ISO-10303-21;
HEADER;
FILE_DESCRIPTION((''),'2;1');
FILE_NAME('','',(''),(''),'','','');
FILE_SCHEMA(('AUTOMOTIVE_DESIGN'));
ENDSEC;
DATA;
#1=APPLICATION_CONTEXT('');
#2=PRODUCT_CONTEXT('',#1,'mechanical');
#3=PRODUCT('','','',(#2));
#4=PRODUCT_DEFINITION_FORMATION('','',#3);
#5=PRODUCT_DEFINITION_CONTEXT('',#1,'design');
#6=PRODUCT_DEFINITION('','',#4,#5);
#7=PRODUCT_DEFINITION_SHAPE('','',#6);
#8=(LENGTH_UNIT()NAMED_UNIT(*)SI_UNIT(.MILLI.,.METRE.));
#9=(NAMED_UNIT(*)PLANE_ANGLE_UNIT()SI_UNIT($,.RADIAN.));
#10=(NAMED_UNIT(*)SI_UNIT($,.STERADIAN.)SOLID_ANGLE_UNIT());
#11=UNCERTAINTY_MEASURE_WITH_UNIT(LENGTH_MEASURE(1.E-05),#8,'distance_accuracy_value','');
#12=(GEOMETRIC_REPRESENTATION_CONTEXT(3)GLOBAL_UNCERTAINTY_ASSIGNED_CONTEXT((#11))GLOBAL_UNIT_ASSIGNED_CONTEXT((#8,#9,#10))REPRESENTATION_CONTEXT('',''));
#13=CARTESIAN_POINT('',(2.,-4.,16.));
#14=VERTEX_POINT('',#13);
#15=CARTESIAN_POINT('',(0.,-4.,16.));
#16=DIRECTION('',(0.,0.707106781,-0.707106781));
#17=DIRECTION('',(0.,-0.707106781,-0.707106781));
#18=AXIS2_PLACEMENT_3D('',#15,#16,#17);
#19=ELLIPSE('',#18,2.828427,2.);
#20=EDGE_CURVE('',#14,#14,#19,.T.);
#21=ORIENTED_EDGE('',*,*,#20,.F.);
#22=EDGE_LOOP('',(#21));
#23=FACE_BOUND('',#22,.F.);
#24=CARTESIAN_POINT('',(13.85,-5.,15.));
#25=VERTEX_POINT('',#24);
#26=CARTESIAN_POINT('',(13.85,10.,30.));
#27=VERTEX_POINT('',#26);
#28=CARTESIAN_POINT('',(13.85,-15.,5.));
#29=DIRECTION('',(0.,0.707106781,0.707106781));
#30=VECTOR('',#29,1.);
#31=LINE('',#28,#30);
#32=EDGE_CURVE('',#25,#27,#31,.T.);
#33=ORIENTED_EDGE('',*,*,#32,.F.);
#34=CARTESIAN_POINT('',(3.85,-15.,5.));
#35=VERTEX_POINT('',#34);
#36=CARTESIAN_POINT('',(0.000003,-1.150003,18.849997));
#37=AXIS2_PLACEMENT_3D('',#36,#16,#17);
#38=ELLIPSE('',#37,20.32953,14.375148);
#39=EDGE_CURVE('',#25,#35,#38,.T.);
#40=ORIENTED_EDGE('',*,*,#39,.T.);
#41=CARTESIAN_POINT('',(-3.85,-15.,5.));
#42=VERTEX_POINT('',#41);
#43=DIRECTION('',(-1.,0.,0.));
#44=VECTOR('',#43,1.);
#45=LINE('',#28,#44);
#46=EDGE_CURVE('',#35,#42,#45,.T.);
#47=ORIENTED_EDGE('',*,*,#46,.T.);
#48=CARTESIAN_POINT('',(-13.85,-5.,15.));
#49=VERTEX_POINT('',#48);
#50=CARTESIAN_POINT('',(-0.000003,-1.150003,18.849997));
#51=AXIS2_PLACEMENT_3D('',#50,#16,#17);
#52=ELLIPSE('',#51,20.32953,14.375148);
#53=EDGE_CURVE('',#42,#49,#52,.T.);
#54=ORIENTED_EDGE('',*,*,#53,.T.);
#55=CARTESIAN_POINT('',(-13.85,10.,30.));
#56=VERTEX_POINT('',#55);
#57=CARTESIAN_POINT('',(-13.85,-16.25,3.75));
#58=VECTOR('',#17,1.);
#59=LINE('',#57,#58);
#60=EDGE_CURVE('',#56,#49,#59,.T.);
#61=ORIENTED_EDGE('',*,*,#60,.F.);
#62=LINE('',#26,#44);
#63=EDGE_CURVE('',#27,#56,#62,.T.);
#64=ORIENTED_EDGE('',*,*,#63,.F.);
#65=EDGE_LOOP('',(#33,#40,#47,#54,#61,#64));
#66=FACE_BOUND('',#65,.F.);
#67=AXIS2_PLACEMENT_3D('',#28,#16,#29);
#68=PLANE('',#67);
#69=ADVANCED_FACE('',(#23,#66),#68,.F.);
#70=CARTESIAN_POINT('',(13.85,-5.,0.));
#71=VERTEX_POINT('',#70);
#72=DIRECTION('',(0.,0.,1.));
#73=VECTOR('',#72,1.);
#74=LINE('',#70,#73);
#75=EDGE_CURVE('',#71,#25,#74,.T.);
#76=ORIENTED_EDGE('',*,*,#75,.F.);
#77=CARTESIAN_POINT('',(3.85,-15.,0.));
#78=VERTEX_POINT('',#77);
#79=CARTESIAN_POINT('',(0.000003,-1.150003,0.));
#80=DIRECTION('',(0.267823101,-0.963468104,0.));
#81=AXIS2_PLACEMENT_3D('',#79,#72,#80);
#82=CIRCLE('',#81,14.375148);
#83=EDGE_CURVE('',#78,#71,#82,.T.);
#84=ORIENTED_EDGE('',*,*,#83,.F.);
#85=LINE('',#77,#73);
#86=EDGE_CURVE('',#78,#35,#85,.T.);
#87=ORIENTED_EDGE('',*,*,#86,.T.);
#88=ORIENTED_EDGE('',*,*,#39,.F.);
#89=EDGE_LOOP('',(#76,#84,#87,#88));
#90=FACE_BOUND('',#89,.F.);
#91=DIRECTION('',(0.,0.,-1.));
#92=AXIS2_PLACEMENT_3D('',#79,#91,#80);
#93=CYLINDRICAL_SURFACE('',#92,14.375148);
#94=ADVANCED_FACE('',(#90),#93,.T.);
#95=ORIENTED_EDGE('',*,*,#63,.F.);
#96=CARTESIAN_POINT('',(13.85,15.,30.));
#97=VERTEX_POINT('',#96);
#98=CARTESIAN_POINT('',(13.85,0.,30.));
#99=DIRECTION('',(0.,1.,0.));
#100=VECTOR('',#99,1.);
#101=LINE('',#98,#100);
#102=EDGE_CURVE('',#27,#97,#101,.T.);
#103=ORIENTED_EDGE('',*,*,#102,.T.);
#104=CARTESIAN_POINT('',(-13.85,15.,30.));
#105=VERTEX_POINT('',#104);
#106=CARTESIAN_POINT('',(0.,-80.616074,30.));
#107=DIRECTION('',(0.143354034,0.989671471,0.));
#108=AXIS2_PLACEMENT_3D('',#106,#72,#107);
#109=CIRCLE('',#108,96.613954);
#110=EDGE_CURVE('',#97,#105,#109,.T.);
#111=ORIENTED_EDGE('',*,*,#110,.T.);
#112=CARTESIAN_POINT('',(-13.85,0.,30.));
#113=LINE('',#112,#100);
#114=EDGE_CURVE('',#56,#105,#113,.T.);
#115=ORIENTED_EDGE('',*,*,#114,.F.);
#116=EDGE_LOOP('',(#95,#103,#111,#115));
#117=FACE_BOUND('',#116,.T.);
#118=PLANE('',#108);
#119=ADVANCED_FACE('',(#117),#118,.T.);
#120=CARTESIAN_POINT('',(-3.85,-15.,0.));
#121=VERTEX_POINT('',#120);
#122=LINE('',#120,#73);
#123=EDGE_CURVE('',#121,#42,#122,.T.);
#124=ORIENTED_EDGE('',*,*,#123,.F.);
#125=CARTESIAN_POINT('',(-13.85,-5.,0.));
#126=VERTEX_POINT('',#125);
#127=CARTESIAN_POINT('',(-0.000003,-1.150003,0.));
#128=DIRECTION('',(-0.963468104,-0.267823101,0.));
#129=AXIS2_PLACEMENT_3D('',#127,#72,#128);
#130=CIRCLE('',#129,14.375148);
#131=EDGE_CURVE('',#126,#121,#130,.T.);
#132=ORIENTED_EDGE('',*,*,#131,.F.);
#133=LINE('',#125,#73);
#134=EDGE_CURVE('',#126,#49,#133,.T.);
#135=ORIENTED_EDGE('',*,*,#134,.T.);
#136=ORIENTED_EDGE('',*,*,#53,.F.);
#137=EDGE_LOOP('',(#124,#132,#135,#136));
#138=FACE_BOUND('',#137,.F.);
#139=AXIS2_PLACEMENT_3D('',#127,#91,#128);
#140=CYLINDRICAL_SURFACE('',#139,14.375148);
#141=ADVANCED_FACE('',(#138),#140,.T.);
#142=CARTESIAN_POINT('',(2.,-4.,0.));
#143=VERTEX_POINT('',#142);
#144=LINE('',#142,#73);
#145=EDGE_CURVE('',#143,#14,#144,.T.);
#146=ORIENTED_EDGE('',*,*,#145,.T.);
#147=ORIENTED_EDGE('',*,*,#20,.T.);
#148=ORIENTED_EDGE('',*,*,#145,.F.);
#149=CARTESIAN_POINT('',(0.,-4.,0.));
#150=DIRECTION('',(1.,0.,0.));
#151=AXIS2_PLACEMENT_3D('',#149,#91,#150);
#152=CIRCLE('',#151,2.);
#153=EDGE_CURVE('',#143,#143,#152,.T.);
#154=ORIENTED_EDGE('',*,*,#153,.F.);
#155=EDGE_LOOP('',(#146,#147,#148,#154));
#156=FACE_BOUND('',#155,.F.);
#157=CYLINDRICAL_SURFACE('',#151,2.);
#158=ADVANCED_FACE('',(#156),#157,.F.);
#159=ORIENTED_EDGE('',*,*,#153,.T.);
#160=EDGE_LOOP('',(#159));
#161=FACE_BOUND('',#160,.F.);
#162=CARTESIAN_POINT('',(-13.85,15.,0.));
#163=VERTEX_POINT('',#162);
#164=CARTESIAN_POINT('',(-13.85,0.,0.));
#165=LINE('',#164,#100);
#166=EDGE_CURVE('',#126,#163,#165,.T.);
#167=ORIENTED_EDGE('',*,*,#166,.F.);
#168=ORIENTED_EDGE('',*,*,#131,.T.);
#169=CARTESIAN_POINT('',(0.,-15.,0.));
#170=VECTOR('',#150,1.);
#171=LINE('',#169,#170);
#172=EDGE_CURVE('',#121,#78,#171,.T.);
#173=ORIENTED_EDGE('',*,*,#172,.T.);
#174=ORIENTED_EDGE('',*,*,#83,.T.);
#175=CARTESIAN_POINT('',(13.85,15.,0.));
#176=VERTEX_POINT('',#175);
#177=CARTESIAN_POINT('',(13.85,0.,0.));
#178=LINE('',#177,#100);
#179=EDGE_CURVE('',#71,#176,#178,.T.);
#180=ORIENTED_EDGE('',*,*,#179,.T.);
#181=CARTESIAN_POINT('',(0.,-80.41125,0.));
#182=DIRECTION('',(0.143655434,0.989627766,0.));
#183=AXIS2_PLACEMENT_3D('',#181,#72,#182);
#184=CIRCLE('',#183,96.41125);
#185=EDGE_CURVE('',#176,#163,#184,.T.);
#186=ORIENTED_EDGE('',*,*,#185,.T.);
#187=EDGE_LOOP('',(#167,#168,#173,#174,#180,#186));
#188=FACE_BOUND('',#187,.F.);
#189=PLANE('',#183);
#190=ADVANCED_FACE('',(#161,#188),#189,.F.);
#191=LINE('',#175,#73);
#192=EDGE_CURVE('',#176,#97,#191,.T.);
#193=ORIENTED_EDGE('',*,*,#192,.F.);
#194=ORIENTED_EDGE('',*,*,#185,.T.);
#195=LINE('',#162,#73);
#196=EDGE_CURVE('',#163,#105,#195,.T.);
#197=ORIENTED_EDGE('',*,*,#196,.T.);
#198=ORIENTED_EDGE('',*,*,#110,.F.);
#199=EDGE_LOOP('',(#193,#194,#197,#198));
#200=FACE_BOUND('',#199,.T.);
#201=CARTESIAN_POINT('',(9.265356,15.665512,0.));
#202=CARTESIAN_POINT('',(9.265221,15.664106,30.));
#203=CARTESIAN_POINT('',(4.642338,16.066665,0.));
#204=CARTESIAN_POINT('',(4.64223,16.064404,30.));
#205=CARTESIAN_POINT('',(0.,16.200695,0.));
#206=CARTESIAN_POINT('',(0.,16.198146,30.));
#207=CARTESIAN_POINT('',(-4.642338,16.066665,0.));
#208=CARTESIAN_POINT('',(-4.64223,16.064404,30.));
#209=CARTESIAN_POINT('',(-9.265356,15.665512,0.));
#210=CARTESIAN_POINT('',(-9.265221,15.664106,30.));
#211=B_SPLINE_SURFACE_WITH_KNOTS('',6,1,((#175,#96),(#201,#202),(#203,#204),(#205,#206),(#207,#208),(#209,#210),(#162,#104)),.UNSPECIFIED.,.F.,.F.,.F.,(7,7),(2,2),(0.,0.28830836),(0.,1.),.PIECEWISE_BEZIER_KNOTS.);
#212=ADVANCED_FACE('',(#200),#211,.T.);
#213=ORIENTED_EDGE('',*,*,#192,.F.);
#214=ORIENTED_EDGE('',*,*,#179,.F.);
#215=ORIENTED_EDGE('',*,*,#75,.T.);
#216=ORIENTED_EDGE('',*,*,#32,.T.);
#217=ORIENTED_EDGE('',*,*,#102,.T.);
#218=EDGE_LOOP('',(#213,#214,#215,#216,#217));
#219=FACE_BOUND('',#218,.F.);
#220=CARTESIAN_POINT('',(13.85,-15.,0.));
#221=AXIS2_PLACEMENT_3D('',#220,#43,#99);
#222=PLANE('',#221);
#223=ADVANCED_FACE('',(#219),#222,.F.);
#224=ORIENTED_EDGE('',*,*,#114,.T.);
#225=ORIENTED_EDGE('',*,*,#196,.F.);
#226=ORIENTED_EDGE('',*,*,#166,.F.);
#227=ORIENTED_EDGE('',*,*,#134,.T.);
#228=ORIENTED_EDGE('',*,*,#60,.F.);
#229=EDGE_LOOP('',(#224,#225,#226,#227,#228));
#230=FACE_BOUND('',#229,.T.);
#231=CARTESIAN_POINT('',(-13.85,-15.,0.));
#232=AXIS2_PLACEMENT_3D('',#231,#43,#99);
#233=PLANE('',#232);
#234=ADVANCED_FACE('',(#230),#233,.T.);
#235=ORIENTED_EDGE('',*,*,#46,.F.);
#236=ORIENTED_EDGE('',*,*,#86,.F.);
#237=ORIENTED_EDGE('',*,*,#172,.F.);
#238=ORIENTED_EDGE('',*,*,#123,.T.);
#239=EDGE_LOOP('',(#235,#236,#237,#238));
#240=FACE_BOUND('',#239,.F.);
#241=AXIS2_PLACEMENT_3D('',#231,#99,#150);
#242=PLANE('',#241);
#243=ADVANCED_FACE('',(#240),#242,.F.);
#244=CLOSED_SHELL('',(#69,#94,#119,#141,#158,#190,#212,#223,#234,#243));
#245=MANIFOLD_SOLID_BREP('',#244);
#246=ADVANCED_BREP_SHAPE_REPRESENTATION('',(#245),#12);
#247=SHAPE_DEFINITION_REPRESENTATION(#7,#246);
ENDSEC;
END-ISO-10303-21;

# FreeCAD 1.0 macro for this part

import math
import FreeCAD as App
import Part
import Sketcher

V = App.Vector
Q = App.Units.Quantity


def add_polygon(sketch, points):
    """Adds a closed chain of lines whose ends are joined by coincident constraints."""
    first, n = sketch.GeometryCount, len(points)
    for a, b in zip(points, points[1:] + points[:1]):
        sketch.addGeometry(Part.LineSegment(App.Vector(*a, 0), App.Vector(*b, 0)), False)
    for i in range(n):
        sketch.addConstraint(Sketcher.Constraint("Coincident", first + i, 2, first + (i + 1) % n, 1))

doc = App.newDocument("Part")
params = doc.addObject("Spreadsheet::Sheet", "Params")
for row, (alias, value) in enumerate([
    ("sketch1_height", "30 mm"),
    ("sketch1_width", "27.7 mm"),
    ("pad1_length", "30 mm"),
    ("sketch2_width", "27.7 mm"),
    ("sketch3_width", "27.7 mm"),
    ("sketch4_width", "25 mm"),
    ("sketch5_diameter", "4 mm"),
    ("sketch5_width", "10 mm"),
], start=1):
    params.set(f"A{row}", alias)
    params.set(f"B{row}", "=" + value)
    params.setAlias(f"B{row}", alias)

body = doc.addObject("PartDesign::Body", "Body")

# Sketch on XY plane
sketch1 = body.newObject("Sketcher::SketchObject", "Sketch")
sketch1.AttachmentSupport = (doc.getObject("XY_Plane"), [""])
sketch1.MapMode = "FlatFace"
add_polygon(sketch1, [(-14, 15), (-14, -15), (14, -15), (14, 15)])  # lines 0-3
sketch1.addConstraint(Sketcher.Constraint("Vertical", 0))
sketch1.addConstraint(Sketcher.Constraint("Horizontal", 1))
sketch1.addConstraint(Sketcher.Constraint("Vertical", 2))
sketch1.addConstraint(Sketcher.Constraint("Horizontal", 3))
sketch1.addConstraint(Sketcher.Constraint("Symmetric", 0, 2, 2, 2, -1, 1))
sketch1.addConstraint(Sketcher.Constraint("DistanceY", 0, 2, 0, 1, Q("30 mm")))
sketch1.addConstraint(Sketcher.Constraint("DistanceX", 1, 1, 1, 2, Q("27.7 mm")))
sketch1.setExpression("Constraints[9]", "Params.sketch1_height")
sketch1.setExpression("Constraints[10]", "Params.sketch1_width")
pad1 = body.newObject("PartDesign::Pad", "Pad")
pad1.Profile = sketch1
pad1.setExpression("Length", "Params.pad1_length")

# Sketch on XY plane
sketch2 = body.newObject("Sketcher::SketchObject", "Sketch001")
sketch2.AttachmentSupport = (doc.getObject("XY_Plane"), [""])
sketch2.MapMode = "FlatFace"
sketch2.addGeometry(Part.LineSegment(V(-14, 15, 0), V(14, 15, 0)), False)
sketch2.addGeometry(Part.ArcOfCircle(Part.Circle(V(0, -80, 0), V(0, 0, 1), 96), math.radians(81.74), math.radians(98.26)), False)
sketch2.addConstraint(Sketcher.Constraint("Coincident", 0, 1, 1, 2))
sketch2.addConstraint(Sketcher.Constraint("Coincident", 1, 1, 0, 2))
sketch2.addConstraint(Sketcher.Constraint("Horizontal", 0))
sketch2.addConstraint(Sketcher.Constraint("PointOnObject", 1, 3, -2))
sketch2.addConstraint(Sketcher.Constraint("DistanceX", 0, 1, 0, 2, Q("27.7 mm")))
sketch2.addConstraint(Sketcher.Constraint("DistanceY", -1, 1, 0, 1, Q("15 mm")))
sketch2.addConstraint(Sketcher.Constraint("Radius", 1, Q("96.41125 mm")))
sketch2.setExpression("Constraints[4]", "Params.sketch2_width")

# Sketch on XY plane
sketch3 = body.newObject("Sketcher::SketchObject", "Sketch002")
sketch3.AttachmentSupport = (doc.getObject("XY_Plane"), [""])
sketch3.MapMode = "FlatFace"
sketch3.AttachmentOffset = App.Placement(V(0, 0, 30), App.Rotation())
sketch3.addGeometry(Part.LineSegment(V(-14, 15, 0), V(14, 15, 0)), False)
sketch3.addGeometry(Part.ArcOfCircle(Part.Circle(V(0, -81, 0), V(0, 0, 1), 97), math.radians(81.76), math.radians(98.24)), False)
sketch3.addConstraint(Sketcher.Constraint("Coincident", 0, 1, 1, 2))
sketch3.addConstraint(Sketcher.Constraint("Coincident", 1, 1, 0, 2))
sketch3.addConstraint(Sketcher.Constraint("Horizontal", 0))
sketch3.addConstraint(Sketcher.Constraint("PointOnObject", 1, 3, -2))
sketch3.addConstraint(Sketcher.Constraint("DistanceX", 0, 1, 0, 2, Q("27.7 mm")))
sketch3.addConstraint(Sketcher.Constraint("DistanceY", -1, 1, 0, 1, Q("15 mm")))
sketch3.addConstraint(Sketcher.Constraint("Radius", 1, Q("96.613954 mm")))
sketch3.setExpression("Constraints[4]", "Params.sketch3_width")

additiveloft = body.newObject("PartDesign::AdditiveLoft", "AdditiveLoft")
additiveloft.Profile = sketch2
additiveloft.Sections = [sketch3]

# Sketch on YZ plane
sketch4 = body.newObject("Sketcher::SketchObject", "Sketch003")
sketch4.AttachmentSupport = (doc.getObject("YZ_Plane"), [""])
sketch4.MapMode = "FlatFace"
sketch4.AttachmentOffset = App.Placement(V(0, 0, 13.85), App.Rotation())
add_polygon(sketch4, [(-15, 5), (10, 30), (-15, 30)])  # lines 0-2
sketch4.addConstraint(Sketcher.Constraint("Horizontal", 1))
sketch4.addConstraint(Sketcher.Constraint("Vertical", 2))
sketch4.addConstraint(Sketcher.Constraint("Equal", 1, 2))
sketch4.addConstraint(Sketcher.Constraint("DistanceX", 1, 2, 1, 1, Q("25 mm")))
sketch4.addConstraint(Sketcher.Constraint("DistanceX", -1, 1, 0, 2, Q("10 mm")))
sketch4.addConstraint(Sketcher.Constraint("DistanceY", -1, 1, 0, 2, Q("30 mm")))
sketch4.setExpression("Constraints[6]", "Params.sketch4_width")
pocket1 = body.newObject("PartDesign::Pocket", "Pocket")
pocket1.Profile = sketch4
pocket1.Type = "ThroughAll"

# Sketch on XY plane
sketch5 = body.newObject("Sketcher::SketchObject", "Sketch004")
sketch5.AttachmentSupport = (doc.getObject("XY_Plane"), [""])
sketch5.MapMode = "FlatFace"
sketch5.addGeometry(Part.Circle(V(0, -4, 0), V(0, 0, 1), 2), False)
sketch5.addGeometry(Part.LineSegment(V(13.8, -5, 0), V(13.8, -15, 0)), False)
sketch5.addGeometry(Part.LineSegment(V(13.8, -15, 0), V(3.9, -15, 0)), False)
sketch5.addGeometry(Part.ArcOfCircle(Part.Circle(V(0, -1.2, 0), V(0, 0, 1), 14.4), math.radians(-74), math.radians(-16)), False)
sketch5.addGeometry(Part.LineSegment(V(-13.8, -15, 0), V(-13.8, -5, 0)), False)
sketch5.addGeometry(Part.ArcOfCircle(Part.Circle(V(0, -1.2, 0), V(0, 0, 1), 14.4), math.radians(-164), math.radians(-106)), False)
sketch5.addGeometry(Part.LineSegment(V(-3.9, -15, 0), V(-13.8, -15, 0)), False)
sketch5.addConstraint(Sketcher.Constraint("Coincident", 1, 2, 2, 1))
sketch5.addConstraint(Sketcher.Constraint("Coincident", 2, 2, 3, 1))
sketch5.addConstraint(Sketcher.Constraint("Coincident", 3, 2, 1, 1))
sketch5.addConstraint(Sketcher.Constraint("Coincident", 4, 2, 5, 1))
sketch5.addConstraint(Sketcher.Constraint("Coincident", 5, 2, 6, 1))
sketch5.addConstraint(Sketcher.Constraint("Coincident", 6, 2, 4, 1))
sketch5.addConstraint(Sketcher.Constraint("Vertical", 1))
sketch5.addConstraint(Sketcher.Constraint("Horizontal", 2))
sketch5.addConstraint(Sketcher.Constraint("Vertical", 4))
sketch5.addConstraint(Sketcher.Constraint("Horizontal", 6))
sketch5.addConstraint(Sketcher.Constraint("Coincident", 5, 3, 3, 3))
sketch5.addConstraint(Sketcher.Constraint("Equal", 3, 5))
sketch5.addConstraint(Sketcher.Constraint("Symmetric", 3, 2, 4, 2, -2))
sketch5.addConstraint(Sketcher.Constraint("PointOnObject", 0, 3, -2))
sketch5.addConstraint(Sketcher.Constraint("Horizontal", 2, 2, 5, 2))
sketch5.addConstraint(Sketcher.Constraint("Equal", 6, 1))
sketch5.addConstraint(Sketcher.Constraint("Diameter", 0, Q("4 mm")))
sketch5.addConstraint(Sketcher.Constraint("DistanceX", 2, 2, 2, 1, Q("10 mm")))
sketch5.addConstraint(Sketcher.Constraint("DistanceY", 0, 3, -1, 1, Q("4 mm")))
sketch5.addConstraint(Sketcher.Constraint("DistanceY", 1, 2, -1, 1, Q("15 mm")))
sketch5.addConstraint(Sketcher.Constraint("DistanceX", 4, 2, 2, 2, Q("17.7 mm")))
sketch5.setExpression("Constraints[16]", "Params.sketch5_diameter")
sketch5.setExpression("Constraints[17]", "Params.sketch5_width")
pocket2 = body.newObject("PartDesign::Pocket", "Pocket001")
pocket2.Profile = sketch5
pocket2.Type = "ThroughAll"
pocket2.Reversed = True

doc.recompute()
